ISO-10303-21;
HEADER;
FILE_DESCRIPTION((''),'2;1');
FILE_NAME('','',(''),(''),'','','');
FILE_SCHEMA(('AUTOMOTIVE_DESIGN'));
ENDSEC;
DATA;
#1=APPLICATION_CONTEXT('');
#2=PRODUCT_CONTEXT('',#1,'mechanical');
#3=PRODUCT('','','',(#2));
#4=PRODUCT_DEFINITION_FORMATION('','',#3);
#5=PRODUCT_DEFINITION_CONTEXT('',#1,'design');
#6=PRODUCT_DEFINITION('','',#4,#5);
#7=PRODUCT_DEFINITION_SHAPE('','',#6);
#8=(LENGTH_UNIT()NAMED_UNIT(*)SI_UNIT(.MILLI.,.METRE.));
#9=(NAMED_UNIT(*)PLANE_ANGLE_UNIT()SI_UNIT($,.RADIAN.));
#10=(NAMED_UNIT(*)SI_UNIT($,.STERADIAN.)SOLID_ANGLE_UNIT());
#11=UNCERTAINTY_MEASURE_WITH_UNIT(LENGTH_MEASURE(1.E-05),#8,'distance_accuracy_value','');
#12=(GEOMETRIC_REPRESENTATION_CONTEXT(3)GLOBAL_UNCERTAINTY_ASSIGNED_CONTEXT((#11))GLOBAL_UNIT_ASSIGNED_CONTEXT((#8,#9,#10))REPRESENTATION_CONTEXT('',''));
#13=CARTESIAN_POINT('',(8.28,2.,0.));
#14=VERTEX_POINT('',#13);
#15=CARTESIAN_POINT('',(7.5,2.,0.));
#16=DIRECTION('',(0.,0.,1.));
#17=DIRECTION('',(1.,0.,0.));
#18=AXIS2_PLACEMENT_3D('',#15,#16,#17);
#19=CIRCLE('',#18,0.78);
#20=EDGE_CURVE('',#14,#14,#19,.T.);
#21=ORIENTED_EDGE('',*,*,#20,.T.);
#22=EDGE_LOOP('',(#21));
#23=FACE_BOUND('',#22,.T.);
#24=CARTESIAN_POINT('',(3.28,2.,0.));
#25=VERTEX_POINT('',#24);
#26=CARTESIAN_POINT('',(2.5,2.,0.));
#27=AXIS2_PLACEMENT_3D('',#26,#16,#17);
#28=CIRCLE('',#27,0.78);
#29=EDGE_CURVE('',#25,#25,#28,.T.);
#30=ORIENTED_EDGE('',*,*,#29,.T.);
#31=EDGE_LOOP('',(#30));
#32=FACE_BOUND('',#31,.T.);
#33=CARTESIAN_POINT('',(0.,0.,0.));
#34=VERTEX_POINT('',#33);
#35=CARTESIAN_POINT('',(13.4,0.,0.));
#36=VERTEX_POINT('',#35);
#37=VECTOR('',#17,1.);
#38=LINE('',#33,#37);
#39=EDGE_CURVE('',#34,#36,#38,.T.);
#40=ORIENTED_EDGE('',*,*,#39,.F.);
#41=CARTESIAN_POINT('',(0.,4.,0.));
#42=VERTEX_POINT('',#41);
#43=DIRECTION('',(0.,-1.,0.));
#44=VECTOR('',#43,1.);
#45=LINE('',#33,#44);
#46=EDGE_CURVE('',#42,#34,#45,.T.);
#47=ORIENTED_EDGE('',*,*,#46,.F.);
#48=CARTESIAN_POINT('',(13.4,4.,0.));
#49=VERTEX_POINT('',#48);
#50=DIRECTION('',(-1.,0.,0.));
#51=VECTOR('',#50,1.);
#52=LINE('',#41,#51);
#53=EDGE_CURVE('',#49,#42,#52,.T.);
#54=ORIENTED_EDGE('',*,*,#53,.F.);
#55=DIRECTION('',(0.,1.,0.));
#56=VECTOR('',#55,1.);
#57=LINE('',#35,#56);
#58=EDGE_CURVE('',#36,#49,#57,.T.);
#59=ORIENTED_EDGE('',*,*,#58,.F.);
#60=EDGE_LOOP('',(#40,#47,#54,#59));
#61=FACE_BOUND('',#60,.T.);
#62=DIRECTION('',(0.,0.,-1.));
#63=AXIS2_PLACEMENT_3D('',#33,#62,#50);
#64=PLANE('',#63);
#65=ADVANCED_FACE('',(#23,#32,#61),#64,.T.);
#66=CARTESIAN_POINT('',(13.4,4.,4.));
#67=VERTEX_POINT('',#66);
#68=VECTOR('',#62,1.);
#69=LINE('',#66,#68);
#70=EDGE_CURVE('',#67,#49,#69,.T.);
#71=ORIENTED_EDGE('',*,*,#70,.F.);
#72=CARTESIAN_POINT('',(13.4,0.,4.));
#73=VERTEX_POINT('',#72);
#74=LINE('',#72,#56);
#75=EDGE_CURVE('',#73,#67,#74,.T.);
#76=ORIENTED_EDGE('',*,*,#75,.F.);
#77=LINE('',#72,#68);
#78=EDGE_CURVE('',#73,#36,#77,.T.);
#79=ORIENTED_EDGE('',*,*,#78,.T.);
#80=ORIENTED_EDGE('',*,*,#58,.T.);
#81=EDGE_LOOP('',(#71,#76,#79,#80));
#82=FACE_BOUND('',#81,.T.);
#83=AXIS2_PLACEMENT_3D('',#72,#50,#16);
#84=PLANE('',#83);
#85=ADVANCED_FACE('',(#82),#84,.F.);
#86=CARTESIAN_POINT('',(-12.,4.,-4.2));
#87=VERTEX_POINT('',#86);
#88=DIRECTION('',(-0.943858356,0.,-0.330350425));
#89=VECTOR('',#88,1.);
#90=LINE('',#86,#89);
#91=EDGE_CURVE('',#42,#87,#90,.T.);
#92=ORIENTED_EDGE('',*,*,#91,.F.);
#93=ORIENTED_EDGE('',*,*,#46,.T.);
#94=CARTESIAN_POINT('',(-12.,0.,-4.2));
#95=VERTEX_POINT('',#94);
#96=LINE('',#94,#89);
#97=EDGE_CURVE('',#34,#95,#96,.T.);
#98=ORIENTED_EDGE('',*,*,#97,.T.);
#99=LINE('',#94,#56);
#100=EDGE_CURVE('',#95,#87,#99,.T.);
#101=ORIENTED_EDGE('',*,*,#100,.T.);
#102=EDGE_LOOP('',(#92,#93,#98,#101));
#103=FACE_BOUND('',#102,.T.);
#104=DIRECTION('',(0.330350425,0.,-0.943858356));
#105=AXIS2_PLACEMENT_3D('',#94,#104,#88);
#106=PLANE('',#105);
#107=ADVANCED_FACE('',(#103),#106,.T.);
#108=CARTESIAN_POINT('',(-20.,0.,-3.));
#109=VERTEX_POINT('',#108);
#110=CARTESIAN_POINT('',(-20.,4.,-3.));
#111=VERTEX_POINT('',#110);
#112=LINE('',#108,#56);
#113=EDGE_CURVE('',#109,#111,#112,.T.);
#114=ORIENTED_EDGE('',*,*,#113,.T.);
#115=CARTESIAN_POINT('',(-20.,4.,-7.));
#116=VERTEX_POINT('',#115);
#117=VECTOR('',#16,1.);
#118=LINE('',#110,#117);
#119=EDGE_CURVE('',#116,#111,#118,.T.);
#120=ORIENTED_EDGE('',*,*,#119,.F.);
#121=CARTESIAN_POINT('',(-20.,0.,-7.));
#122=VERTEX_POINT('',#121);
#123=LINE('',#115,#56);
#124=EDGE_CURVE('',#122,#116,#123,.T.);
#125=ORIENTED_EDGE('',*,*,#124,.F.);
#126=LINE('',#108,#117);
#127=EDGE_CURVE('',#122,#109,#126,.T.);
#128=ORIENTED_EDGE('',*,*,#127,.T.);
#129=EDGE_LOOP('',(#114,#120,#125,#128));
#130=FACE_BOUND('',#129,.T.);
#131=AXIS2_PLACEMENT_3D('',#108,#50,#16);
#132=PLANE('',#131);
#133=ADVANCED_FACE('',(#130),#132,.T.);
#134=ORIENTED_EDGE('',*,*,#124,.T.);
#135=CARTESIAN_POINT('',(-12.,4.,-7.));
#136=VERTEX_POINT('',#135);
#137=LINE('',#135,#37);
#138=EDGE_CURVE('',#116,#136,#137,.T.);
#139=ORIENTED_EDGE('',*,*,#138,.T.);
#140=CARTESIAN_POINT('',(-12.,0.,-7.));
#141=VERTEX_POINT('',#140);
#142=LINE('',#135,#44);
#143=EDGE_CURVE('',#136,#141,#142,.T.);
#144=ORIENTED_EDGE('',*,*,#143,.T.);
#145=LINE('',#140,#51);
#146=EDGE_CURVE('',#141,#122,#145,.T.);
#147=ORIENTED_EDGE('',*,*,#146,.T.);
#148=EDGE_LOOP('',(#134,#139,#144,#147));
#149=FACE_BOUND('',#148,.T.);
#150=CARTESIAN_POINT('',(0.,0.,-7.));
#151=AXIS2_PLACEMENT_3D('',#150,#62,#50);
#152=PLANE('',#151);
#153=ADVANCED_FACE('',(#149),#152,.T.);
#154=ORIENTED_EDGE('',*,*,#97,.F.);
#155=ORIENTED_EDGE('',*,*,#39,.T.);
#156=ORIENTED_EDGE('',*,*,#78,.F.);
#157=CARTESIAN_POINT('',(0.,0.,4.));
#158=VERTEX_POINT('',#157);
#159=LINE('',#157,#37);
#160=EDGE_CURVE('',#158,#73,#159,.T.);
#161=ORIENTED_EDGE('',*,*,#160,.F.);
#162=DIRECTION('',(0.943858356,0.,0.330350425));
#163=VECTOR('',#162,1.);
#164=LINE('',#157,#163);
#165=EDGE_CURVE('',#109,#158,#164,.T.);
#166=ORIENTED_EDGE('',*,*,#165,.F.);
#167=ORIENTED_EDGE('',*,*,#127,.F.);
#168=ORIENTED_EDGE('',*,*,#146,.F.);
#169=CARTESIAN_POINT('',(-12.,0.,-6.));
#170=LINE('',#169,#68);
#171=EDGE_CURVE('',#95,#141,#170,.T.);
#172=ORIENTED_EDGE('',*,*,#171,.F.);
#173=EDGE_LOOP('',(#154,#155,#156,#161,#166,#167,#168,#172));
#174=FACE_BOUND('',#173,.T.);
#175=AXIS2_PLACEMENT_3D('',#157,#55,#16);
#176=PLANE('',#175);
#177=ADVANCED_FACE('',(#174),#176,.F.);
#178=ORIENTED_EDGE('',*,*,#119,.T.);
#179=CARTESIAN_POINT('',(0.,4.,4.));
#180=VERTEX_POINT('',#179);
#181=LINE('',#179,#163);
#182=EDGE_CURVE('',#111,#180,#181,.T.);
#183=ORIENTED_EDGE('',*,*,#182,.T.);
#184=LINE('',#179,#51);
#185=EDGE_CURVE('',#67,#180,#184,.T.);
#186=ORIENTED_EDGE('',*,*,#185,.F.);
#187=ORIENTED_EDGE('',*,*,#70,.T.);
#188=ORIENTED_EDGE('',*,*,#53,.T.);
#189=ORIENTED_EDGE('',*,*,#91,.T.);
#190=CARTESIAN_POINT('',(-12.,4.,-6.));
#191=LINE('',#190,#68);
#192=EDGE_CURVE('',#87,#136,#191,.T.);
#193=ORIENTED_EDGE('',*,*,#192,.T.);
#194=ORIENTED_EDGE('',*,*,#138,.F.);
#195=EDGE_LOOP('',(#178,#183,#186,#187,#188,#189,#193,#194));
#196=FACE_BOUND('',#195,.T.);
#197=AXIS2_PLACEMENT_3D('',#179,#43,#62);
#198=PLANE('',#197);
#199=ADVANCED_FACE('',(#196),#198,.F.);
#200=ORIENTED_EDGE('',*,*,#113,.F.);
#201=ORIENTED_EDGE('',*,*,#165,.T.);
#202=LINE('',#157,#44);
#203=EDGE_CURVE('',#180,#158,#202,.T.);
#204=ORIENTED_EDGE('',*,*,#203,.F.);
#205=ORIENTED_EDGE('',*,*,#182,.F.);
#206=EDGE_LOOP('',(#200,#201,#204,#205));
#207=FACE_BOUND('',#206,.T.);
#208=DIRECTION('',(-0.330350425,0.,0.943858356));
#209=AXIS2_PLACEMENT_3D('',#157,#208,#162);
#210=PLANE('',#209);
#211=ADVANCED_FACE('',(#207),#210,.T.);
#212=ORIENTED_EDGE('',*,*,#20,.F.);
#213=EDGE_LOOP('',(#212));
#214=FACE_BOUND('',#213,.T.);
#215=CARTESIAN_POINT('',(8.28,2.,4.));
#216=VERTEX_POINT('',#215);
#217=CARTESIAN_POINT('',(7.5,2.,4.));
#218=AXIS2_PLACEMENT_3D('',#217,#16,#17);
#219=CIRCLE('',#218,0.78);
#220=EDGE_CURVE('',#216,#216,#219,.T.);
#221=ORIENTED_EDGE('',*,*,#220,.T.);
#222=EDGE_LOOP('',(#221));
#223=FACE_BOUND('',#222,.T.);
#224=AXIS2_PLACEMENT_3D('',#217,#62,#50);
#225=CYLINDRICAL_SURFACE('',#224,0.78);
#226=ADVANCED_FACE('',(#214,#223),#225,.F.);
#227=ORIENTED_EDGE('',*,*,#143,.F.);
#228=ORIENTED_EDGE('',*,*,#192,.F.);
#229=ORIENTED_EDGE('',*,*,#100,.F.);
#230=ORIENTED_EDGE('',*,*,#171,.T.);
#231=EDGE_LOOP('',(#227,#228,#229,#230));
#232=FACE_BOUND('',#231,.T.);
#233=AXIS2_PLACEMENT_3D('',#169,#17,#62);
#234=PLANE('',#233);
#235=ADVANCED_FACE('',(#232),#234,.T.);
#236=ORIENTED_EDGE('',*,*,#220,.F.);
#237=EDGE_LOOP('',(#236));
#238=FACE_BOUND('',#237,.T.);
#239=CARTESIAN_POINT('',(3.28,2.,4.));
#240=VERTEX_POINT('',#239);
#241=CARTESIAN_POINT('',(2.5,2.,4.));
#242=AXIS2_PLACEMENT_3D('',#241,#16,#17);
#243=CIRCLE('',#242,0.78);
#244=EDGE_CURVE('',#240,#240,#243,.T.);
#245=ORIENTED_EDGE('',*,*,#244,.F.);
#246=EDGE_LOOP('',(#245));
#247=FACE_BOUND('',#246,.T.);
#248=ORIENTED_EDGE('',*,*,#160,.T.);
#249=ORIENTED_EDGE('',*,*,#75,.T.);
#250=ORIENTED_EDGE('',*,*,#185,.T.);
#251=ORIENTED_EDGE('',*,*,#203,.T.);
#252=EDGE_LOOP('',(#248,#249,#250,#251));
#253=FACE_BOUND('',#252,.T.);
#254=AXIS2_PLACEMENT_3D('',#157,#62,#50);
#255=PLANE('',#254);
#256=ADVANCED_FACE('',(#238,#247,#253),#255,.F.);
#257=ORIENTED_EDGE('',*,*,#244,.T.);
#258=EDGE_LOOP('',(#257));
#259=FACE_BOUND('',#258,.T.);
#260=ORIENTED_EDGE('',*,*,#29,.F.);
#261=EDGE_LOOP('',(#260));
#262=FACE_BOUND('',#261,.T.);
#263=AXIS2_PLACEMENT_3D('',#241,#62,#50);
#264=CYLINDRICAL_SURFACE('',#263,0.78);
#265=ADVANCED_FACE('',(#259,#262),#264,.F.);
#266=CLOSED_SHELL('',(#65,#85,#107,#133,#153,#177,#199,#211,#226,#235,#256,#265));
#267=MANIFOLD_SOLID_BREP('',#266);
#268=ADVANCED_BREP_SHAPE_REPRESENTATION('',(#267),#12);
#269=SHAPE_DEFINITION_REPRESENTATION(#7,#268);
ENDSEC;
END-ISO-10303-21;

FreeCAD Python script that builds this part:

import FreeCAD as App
import Part
import Sketcher

V = App.Vector


def add_polygon(sketch, points):
    """Adds a closed chain of lines whose ends are joined by coincident constraints."""
    first, n = sketch.GeometryCount, len(points)
    for a, b in zip(points, points[1:] + points[:1]):
        sketch.addGeometry(Part.LineSegment(App.Vector(*a, 0), App.Vector(*b, 0)), False)
    for i in range(n):
        sketch.addConstraint(Sketcher.Constraint("Coincident", first + i, 2, first + (i + 1) % n, 1))

doc = App.newDocument("Part")
body = doc.addObject("PartDesign::Body", "Body")

# Sketch on XY plane
sketch1 = body.newObject("Sketcher::SketchObject", "Sketch")
sketch1.AttachmentSupport = (doc.getObject("XY_Plane"), [""])
sketch1.MapMode = "FlatFace"
add_polygon(sketch1, [(0, 4), (0, 0), (13.4, 0), (13.4, 4)])  # lines 0-3
sketch1.addGeometry(Part.Circle(V(2.5, 2, 0), V(0, 0, 1), 0.8), False)  # 4
sketch1.addGeometry(Part.Circle(V(7.5, 2, 0), V(0, 0, 1), 0.8), False)  # 5
sketch1.addConstraint([
    Sketcher.Constraint("Vertical", 0),
    Sketcher.Constraint("Horizontal", 1),
    Sketcher.Constraint("Vertical", 2),
    Sketcher.Constraint("Horizontal", 3),
    Sketcher.Constraint("Coincident", 0, 2, -1, 1),
    Sketcher.Constraint("Equal", 4, 5),
    Sketcher.Constraint("Horizontal", 4, 3, 5, 3),
    Sketcher.Constraint("Diameter", 4, 1.56),
    Sketcher.Constraint("DistanceY", 0, 2, 0, 1, 4.0),
    Sketcher.Constraint("DistanceX", 1, 1, 1, 2, 13.4),
    Sketcher.Constraint("DistanceY", -1, 1, 4, 3, 2.0),
    Sketcher.Constraint("DistanceX", 4, 3, 5, 3, 5.0),
    Sketcher.Constraint("DistanceX", -1, 1, 4, 3, 2.5),
])
pad1 = body.newObject("PartDesign::Pad", "Pad")
pad1.Profile = sketch1
pad1.Length = 4

# Sketch on XZ plane
sketch2 = body.newObject("Sketcher::SketchObject", "Sketch001")
sketch2.AttachmentSupport = (doc.getObject("XZ_Plane"), [""])
sketch2.MapMode = "FlatFace"
sketch2.AttachmentOffset = App.Placement(V(0, 0, -4), App.Rotation())
add_polygon(sketch2, [(-20, -3), (0, 4), (0, 0), (-12, -4.2), (-12, -6), (-20, -6)])  # lines 0-5
sketch2.addConstraint([
    Sketcher.Constraint("Vertical", 1),
    Sketcher.Constraint("Vertical", 3),
    Sketcher.Constraint("Horizontal", 4),
    Sketcher.Constraint("Vertical", 5),
    Sketcher.Constraint("Coincident", 1, 2, -1, 1),
    Sketcher.Constraint("Parallel", 0, 2),
    Sketcher.Constraint("DistanceX", 4, 2, 4, 1, 8.0),
    Sketcher.Constraint("DistanceY", 1, 2, 1, 1, 4.0),
    Sketcher.Constraint("DistanceY", 5, 1, 5, 2, 3.0),
    Sketcher.Constraint("DistanceY", 3, 2, 3, 1, 1.8),
    Sketcher.Constraint("DistanceX", 2, 2, -1, 1, 12.0),
])
pad2 = body.newObject("PartDesign::Pad", "Pad001")
pad2.Profile = sketch2
pad2.Length = 4

# Sketch on XY plane
sketch3 = body.newObject("Sketcher::SketchObject", "Sketch002")
sketch3.AttachmentSupport = (doc.getObject("XY_Plane"), [""])
sketch3.MapMode = "FlatFace"
sketch3.AttachmentOffset = App.Placement(V(0, 0, -6), App.Rotation())
add_polygon(sketch3, [(-12, 4), (-12, 0), (-20, 0), (-20, 4)])  # lines 0-3
sketch3.addConstraint([
    Sketcher.Constraint("Vertical", 0),
    Sketcher.Constraint("Horizontal", 1),
    Sketcher.Constraint("Vertical", 2),
    Sketcher.Constraint("Horizontal", 3),
    Sketcher.Constraint("PointOnObject", 0, 2, -1),
    Sketcher.Constraint("DistanceX", 1, 2, 1, 1, 8.0),
    Sketcher.Constraint("DistanceY", 0, 2, 0, 1, 4.0),
    Sketcher.Constraint("DistanceX", 0, 2, -1, 1, 12.0),
])
pad3 = body.newObject("PartDesign::Pad", "Pad002")
pad3.Profile = sketch3
pad3.Length = 1
pad3.Reversed = True

doc.recompute()
